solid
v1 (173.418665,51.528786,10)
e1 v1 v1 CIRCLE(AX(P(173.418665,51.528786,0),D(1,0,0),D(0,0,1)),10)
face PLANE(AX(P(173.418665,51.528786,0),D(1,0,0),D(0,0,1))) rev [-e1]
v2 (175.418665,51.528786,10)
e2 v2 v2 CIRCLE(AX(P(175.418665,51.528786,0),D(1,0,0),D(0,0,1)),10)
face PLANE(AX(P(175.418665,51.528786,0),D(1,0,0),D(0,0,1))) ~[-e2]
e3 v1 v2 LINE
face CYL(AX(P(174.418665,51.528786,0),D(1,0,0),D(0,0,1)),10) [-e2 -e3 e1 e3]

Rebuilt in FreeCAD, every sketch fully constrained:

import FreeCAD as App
import Part
import Sketcher

V = App.Vector
Q = App.Units.Quantity

doc = App.newDocument("Part")
body = doc.addObject("PartDesign::Body", "Body")

# Sketch on XY plane
sketch1 = body.newObject("Sketcher::SketchObject", "Sketch")
sketch1.AttachmentSupport = (doc.getObject("XY_Plane"), [""])
sketch1.MapMode = "FlatFace"
sketch1.addGeometry(Part.LineSegment(V(173.418665, 61.528786, 0), V(173.418665, 51.528786, 0)), False)
sketch1.addGeometry(Part.LineSegment(V(173.418665, 51.528786, 0), V(175.418665, 51.528786, 0)), False)
sketch1.addGeometry(Part.LineSegment(V(175.418665, 51.528786, 0), V(175.418665, 61.528786, 0)), False)
sketch1.addGeometry(Part.LineSegment(V(175.418665, 61.528786, 0), V(173.418665, 61.528786, 0)), False)
sketch1.addGeometry(Part.LineSegment(V(173.418665, 51.528786, 0), V(175.418665, 51.528786, 0)), True)  # axis
sketch1.addConstraint(Sketcher.Constraint("Coincident", 0, 2, 1, 1))
sketch1.addConstraint(Sketcher.Constraint("Coincident", 1, 2, 2, 1))
sketch1.addConstraint(Sketcher.Constraint("Coincident", 2, 2, 3, 1))
sketch1.addConstraint(Sketcher.Constraint("Coincident", 3, 2, 0, 1))
sketch1.addConstraint(Sketcher.Constraint("Vertical", 0))
sketch1.addConstraint(Sketcher.Constraint("Horizontal", 1))
sketch1.addConstraint(Sketcher.Constraint("Vertical", 2))
sketch1.addConstraint(Sketcher.Constraint("Horizontal", 3))
sketch1.addConstraint(Sketcher.Constraint("Horizontal", 4))
sketch1.addConstraint(Sketcher.Constraint("Coincident", 4, 1, 0, 2))
sketch1.addConstraint(Sketcher.Constraint("Vertical", 2, 2, 4, 2))
sketch1.addConstraint(Sketcher.Constraint("DistanceX", 1, 1, 1, 2, Q("2 mm")))
sketch1.addConstraint(Sketcher.Constraint("DistanceY", 0, 2, 0, 1, Q("10 mm")))
sketch1.addConstraint(Sketcher.Constraint("DistanceX", -1, 1, 0, 2, Q("173.418665 mm")))
sketch1.addConstraint(Sketcher.Constraint("DistanceY", -1, 1, 0, 2, Q("51.528786 mm")))
revolution = body.newObject("PartDesign::Revolution", "Revolution")
revolution.Profile = sketch1
revolution.ReferenceAxis = (sketch1, ["Axis0"])
revolution.Angle = 360

doc.recompute()
